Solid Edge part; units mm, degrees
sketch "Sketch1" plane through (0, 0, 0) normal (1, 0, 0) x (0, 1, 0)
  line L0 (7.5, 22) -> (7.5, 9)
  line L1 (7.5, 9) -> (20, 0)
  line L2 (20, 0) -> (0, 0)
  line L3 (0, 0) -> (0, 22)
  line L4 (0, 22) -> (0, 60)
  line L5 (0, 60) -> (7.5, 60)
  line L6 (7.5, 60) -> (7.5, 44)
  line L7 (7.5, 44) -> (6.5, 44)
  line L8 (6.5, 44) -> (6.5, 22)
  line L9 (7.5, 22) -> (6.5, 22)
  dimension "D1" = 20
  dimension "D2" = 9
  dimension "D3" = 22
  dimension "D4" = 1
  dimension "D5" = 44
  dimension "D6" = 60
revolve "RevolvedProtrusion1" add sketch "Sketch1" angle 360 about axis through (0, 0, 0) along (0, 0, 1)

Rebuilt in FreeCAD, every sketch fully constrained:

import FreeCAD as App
import Part
import Sketcher

V = App.Vector
Q = App.Units.Quantity

doc = App.newDocument("Part")
body = doc.addObject("PartDesign::Body", "Body")

# Sketch on YZ plane
sketch1 = body.newObject("Sketcher::SketchObject", "Sketch")
sketch1.AttachmentSupport = (doc.getObject("YZ_Plane"), [""])
sketch1.MapMode = "FlatFace"
sketch1.addGeometry([
    Part.LineSegment(V(7.5, 9, 0), V(7.5, 22, 0)),  # 0
    Part.LineSegment(V(7.5, 22, 0), V(6.5, 22, 0)),  # 1
    Part.LineSegment(V(6.5, 22, 0), V(6.5, 44, 0)),  # 2
    Part.LineSegment(V(6.5, 44, 0), V(7.5, 44, 0)),  # 3
    Part.LineSegment(V(7.5, 44, 0), V(7.5, 60, 0)),  # 4
    Part.LineSegment(V(7.5, 60, 0), V(0, 60, 0)),  # 5
    Part.LineSegment(V(0, 60, 0), V(0, 0, 0)),  # 6
    Part.LineSegment(V(0, 0, 0), V(20, 0, 0)),  # 7
    Part.LineSegment(V(20, 0, 0), V(7.5, 9, 0)),  # 8
], False)
sketch1.addConstraint([
    Sketcher.Constraint("Coincident", 0, 2, 1, 1),
    Sketcher.Constraint("Coincident", 1, 2, 2, 1),
    Sketcher.Constraint("Coincident", 2, 2, 3, 1),
    Sketcher.Constraint("Coincident", 3, 2, 4, 1),
    Sketcher.Constraint("Coincident", 4, 2, 5, 1),
    Sketcher.Constraint("Coincident", 5, 2, 6, 1),
    Sketcher.Constraint("Coincident", 6, 2, 7, 1),
    Sketcher.Constraint("Coincident", 7, 2, 8, 1),
    Sketcher.Constraint("Coincident", 8, 2, 0, 1),
    Sketcher.Constraint("Vertical", 0),
    Sketcher.Constraint("Horizontal", 1),
    Sketcher.Constraint("Vertical", 2),
    Sketcher.Constraint("Horizontal", 3),
    Sketcher.Constraint("Vertical", 4),
    Sketcher.Constraint("Horizontal", 5),
    Sketcher.Constraint("Vertical", 6),
    Sketcher.Constraint("Horizontal", 7),
    Sketcher.Constraint("Coincident", 6, 2, -1, 1),
    Sketcher.Constraint("Vertical", 0, 2, 3, 2),
    Sketcher.Constraint("DistanceX", 7, 1, 7, 2, Q("20 mm")),
    Sketcher.Constraint("DistanceX", 5, 2, 5, 1, Q("7.5 mm")),
    Sketcher.Constraint("DistanceX", 1, 2, 1, 1, Q("1 mm")),
    Sketcher.Constraint("DistanceY", 0, 1, 0, 2, Q("13 mm")),
    Sketcher.Constraint("DistanceY", 2, 1, 2, 2, Q("22 mm")),
    Sketcher.Constraint("DistanceY", 4, 1, 4, 2, Q("16 mm")),
    Sketcher.Constraint("DistanceY", 6, 2, 6, 1, Q("60 mm")),
])
revolution = body.newObject("PartDesign::Revolution", "Revolution")
revolution.Profile = sketch1
revolution.ReferenceAxis = (sketch1, ["V_Axis"])
revolution.Angle = 360

doc.recompute()
